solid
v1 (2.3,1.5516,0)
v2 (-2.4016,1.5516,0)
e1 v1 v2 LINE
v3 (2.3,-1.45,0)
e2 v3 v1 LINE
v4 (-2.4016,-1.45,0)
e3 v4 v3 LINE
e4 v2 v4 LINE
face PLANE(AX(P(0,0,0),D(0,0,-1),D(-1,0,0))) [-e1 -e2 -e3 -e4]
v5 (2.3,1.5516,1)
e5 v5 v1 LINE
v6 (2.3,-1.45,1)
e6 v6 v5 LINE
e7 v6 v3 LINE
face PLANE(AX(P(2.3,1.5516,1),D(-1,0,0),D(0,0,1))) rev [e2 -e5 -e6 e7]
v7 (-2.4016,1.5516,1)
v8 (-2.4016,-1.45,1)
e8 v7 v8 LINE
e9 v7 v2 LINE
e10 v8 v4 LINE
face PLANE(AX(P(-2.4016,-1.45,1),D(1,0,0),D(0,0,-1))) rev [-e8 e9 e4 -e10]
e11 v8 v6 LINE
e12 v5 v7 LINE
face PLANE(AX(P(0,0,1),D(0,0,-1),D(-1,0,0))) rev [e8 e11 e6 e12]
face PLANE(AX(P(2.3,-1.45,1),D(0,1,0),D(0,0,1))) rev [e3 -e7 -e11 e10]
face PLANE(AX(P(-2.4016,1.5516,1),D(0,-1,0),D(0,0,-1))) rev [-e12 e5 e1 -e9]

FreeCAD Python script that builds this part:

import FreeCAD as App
import Part
import Sketcher


def add_polygon(sketch, points):
    """Adds a closed chain of lines whose ends are joined by coincident constraints."""
    first, n = sketch.GeometryCount, len(points)
    for a, b in zip(points, points[1:] + points[:1]):
        sketch.addGeometry(Part.LineSegment(App.Vector(*a, 0), App.Vector(*b, 0)), False)
    for i in range(n):
        sketch.addConstraint(Sketcher.Constraint("Coincident", first + i, 2, first + (i + 1) % n, 1))

doc = App.newDocument("Part")
body = doc.addObject("PartDesign::Body", "Body")

# Sketch on XY plane
sketch1 = body.newObject("Sketcher::SketchObject", "Sketch")
sketch1.AttachmentSupport = (doc.getObject("XY_Plane"), [""])
sketch1.MapMode = "FlatFace"
add_polygon(sketch1, [(-2.4, 1.6), (-2.4, -1.4), (2.3, -1.4), (2.3, 1.6)])  # lines 0-3
sketch1.addConstraint([
    Sketcher.Constraint("Vertical", 0),
    Sketcher.Constraint("Horizontal", 1),
    Sketcher.Constraint("Vertical", 2),
    Sketcher.Constraint("Horizontal", 3),
    Sketcher.Constraint("DistanceX", -1, 1, 1, 2, 2.3),
    Sketcher.Constraint("DistanceY", 0, 2, -1, 1, 1.45),
    Sketcher.Constraint("DistanceX", 1, 1, 1, 2, 4.7016),
    Sketcher.Constraint("DistanceY", 0, 2, 0, 1, 3.0016),
])
pad1 = body.newObject("PartDesign::Pad", "Pad")
pad1.Profile = sketch1
pad1.Length = 1

doc.recompute()
